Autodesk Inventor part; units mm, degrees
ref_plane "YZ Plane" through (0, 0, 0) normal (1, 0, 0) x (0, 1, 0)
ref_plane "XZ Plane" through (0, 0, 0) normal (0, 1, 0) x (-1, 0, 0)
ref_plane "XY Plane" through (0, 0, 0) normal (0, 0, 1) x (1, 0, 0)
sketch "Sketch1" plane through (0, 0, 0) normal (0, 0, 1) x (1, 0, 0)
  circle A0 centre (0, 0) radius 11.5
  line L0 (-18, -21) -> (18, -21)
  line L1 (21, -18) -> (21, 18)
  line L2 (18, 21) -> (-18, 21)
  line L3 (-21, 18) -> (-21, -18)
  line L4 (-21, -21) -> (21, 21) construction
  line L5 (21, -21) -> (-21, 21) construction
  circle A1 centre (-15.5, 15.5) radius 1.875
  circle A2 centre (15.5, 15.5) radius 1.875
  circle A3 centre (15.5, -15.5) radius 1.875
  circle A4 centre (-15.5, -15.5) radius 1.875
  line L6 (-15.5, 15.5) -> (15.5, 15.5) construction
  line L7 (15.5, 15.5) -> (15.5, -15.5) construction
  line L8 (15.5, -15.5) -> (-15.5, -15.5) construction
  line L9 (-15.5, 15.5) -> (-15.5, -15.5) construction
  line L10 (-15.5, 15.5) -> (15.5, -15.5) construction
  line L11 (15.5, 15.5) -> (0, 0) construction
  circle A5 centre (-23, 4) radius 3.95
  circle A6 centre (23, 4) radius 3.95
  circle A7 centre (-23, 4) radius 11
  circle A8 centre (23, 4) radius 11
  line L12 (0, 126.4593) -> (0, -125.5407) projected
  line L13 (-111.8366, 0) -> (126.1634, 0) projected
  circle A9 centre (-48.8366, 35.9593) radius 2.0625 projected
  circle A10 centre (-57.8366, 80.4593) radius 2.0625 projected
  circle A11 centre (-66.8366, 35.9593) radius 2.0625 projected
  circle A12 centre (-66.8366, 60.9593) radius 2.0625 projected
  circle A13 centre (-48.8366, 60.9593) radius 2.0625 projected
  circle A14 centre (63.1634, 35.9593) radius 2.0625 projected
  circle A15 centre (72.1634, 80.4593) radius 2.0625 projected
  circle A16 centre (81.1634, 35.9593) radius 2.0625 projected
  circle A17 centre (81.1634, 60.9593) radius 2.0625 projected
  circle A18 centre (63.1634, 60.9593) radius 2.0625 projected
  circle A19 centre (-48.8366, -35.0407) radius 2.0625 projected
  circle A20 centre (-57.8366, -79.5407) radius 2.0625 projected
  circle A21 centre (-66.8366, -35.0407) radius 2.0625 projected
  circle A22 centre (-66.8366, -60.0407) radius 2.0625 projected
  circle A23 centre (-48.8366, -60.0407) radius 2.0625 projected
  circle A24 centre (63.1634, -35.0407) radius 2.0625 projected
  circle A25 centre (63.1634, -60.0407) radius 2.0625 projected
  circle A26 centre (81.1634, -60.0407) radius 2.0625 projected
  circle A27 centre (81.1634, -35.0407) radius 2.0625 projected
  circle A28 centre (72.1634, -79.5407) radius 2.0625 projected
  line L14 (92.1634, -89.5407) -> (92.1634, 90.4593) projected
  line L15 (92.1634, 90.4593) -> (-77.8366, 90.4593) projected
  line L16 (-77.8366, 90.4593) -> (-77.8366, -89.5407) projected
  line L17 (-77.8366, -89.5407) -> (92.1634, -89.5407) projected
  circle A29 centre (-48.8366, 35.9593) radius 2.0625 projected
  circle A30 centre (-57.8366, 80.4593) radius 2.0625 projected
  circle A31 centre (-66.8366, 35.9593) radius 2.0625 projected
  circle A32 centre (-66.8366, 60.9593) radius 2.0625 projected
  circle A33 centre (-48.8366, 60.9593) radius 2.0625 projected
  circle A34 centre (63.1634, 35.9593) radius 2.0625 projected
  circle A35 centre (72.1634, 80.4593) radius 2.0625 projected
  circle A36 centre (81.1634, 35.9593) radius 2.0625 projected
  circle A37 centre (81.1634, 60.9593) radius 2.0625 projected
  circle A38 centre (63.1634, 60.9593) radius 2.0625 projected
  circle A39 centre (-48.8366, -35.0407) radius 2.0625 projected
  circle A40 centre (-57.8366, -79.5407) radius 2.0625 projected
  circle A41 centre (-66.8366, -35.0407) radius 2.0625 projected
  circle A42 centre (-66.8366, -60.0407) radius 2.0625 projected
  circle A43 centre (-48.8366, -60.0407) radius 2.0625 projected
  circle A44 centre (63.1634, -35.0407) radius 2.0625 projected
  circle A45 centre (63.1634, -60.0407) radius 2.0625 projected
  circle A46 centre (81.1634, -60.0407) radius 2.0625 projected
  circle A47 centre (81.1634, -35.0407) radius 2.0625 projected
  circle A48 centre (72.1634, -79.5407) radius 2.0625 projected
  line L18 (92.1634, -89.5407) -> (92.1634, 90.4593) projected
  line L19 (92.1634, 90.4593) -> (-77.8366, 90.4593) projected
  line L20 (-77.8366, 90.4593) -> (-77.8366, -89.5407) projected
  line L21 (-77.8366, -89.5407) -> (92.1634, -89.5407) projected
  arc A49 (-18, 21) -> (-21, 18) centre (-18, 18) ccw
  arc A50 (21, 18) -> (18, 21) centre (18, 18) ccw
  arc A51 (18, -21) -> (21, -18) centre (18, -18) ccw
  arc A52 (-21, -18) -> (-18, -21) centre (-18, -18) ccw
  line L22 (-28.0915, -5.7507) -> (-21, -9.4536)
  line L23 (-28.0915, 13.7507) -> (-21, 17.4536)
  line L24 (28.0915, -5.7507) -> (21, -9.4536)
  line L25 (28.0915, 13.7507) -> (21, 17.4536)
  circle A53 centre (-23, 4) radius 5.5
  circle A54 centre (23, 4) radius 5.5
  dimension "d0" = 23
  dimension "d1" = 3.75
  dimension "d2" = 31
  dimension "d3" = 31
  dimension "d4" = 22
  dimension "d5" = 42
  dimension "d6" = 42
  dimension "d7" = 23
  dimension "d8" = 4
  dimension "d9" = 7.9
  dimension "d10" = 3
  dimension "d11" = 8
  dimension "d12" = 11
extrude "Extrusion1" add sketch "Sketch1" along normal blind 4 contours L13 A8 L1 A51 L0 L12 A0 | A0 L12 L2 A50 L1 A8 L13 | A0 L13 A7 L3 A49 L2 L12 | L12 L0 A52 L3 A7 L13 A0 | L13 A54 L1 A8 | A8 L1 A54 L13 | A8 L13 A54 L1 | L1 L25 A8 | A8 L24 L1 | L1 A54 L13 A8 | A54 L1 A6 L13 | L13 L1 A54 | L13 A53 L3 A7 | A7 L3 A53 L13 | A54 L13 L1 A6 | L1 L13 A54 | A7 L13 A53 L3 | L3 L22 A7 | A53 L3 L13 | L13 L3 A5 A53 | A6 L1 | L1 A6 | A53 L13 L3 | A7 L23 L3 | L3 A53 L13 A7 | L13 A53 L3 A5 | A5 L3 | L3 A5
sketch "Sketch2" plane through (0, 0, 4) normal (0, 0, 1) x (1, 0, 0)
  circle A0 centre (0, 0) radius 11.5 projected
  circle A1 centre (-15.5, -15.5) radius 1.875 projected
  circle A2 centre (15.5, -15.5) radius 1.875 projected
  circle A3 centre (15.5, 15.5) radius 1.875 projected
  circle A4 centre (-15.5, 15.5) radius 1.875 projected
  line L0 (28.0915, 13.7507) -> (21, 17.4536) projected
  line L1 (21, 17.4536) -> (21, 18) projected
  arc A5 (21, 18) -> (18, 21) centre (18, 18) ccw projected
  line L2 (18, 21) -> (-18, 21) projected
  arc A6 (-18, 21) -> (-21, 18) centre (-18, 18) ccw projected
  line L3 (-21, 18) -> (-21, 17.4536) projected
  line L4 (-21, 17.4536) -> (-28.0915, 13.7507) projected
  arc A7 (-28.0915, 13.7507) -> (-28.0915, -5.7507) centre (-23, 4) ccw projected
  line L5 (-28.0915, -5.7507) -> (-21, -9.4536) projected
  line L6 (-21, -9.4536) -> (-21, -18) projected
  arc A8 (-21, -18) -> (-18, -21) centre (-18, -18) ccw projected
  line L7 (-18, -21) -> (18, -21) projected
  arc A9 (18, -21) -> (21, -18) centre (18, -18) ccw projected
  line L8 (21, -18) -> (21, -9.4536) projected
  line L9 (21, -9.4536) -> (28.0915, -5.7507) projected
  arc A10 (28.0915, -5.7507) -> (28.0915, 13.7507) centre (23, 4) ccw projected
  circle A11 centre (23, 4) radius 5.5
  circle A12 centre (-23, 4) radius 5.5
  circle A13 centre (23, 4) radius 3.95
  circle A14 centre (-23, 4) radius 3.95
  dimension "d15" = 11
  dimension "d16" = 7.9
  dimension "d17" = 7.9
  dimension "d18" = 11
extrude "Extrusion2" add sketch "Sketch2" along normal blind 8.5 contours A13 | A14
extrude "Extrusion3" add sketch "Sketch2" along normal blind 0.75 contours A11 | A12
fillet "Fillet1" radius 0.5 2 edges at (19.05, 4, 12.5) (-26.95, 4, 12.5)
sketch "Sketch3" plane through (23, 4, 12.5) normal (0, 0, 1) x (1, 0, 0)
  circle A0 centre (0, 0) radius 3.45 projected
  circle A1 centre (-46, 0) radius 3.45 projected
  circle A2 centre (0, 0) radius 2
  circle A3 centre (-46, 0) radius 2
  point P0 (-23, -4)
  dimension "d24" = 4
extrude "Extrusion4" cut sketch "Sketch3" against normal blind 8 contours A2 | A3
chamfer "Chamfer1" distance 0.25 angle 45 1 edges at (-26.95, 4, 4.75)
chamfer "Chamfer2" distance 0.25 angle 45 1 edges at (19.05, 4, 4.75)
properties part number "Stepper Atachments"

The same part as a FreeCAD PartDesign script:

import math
import FreeCAD as App
import Part
import Sketcher

V = App.Vector


def edges_at(feature, points):
    """Names of the edges that pass closest to the given points."""
    edges = feature.Shape.Edges
    near = lambda p: min(range(len(edges)), key=lambda i: edges[i].distToShape(Part.Vertex(*p))[0])
    return sorted({f"Edge{near(p) + 1}" for p in points})

doc = App.newDocument("Part")
params = doc.addObject("Spreadsheet::Sheet", "Params")
for row, (alias, value) in enumerate([
    ("sketch1_diameter", "23 mm"),
    ("sketch1_radius", "11 mm"),
    ("sketch1_radius2", "3 mm"),
    ("sketch1_diameter2", "3.75 mm"),
    ("sketch1_length", "8 mm"),
    ("pad1_length", "4 mm"),
    ("sketch2_diameter", "7.9 mm"),
    ("pad2_length", "8.5 mm"),
    ("sketch3_diameter", "11 mm"),
    ("sketch3_diameter2", "7.9 mm"),
    ("pad3_length", "0.75 mm"),
    ("fillet_radius", "0.5 mm"),
    ("sketch4_diameter", "4 mm"),
    ("pocket1_length", "8 mm"),
    ("chamfer_size", "0.25 mm"),
    ("chamfer2_size", "0.25 mm"),
], start=1):
    params.set(f"A{row}", alias)
    params.set(f"B{row}", "=" + value)
    params.setAlias(f"B{row}", alias)

body = doc.addObject("PartDesign::Body", "Body")

# Sketch on XY plane
sketch1 = body.newObject("Sketcher::SketchObject", "Sketch")
sketch1.AttachmentSupport = (doc.getObject("XY_Plane"), [""])
sketch1.MapMode = "FlatFace"
sketch1.addGeometry(Part.LineSegment(V(21, -18, 0), V(21, -9.5, 0)), False)
sketch1.addGeometry(Part.LineSegment(V(21, -9.5, 0), V(28.1, -5.8, 0)), False)
sketch1.addGeometry(Part.ArcOfCircle(Part.Circle(V(23, 4, 0), V(0, 0, 1), 11), math.radians(-62), math.radians(62)), False)
sketch1.addGeometry(Part.LineSegment(V(28.1, 13.8, 0), V(21, 17.5, 0)), False)
sketch1.addGeometry(Part.LineSegment(V(21, 17.5, 0), V(21, 18, 0)), False)
sketch1.addGeometry(Part.ArcOfCircle(Part.Circle(V(18, 18, 0), V(0, 0, 1), 3), math.radians(0), math.radians(90)), False)
sketch1.addGeometry(Part.LineSegment(V(18, 21, 0), V(-18, 21, 0)), False)
sketch1.addGeometry(Part.ArcOfCircle(Part.Circle(V(-18, 18, 0), V(0, 0, 1), 3), math.radians(90), math.radians(180)), False)
sketch1.addGeometry(Part.LineSegment(V(-21, 18, 0), V(-21, 17.5, 0)), False)
sketch1.addGeometry(Part.LineSegment(V(-21, 17.5, 0), V(-28.1, 13.8, 0)), False)
sketch1.addGeometry(Part.ArcOfCircle(Part.Circle(V(-23, 4, 0), V(0, 0, 1), 11), math.radians(118), math.radians(242)), False)
sketch1.addGeometry(Part.LineSegment(V(-28.1, -5.8, 0), V(-21, -9.5, 0)), False)
sketch1.addGeometry(Part.LineSegment(V(-21, -9.5, 0), V(-21, -18, 0)), False)
sketch1.addGeometry(Part.ArcOfCircle(Part.Circle(V(-18, -18, 0), V(0, 0, 1), 3), math.radians(180), math.radians(270)), False)
sketch1.addGeometry(Part.LineSegment(V(-18, -21, 0), V(18, -21, 0)), False)
sketch1.addGeometry(Part.ArcOfCircle(Part.Circle(V(18, -18, 0), V(0, 0, 1), 3), math.radians(-90), math.radians(0)), False)
sketch1.addGeometry(Part.Circle(V(0, 0, 0), V(0, 0, 1), 11.5), False)
sketch1.addGeometry(Part.Circle(V(15.5, -15.5, 0), V(0, 0, 1), 1.9), False)
sketch1.addGeometry(Part.Circle(V(15.5, 15.5, 0), V(0, 0, 1), 1.9), False)
sketch1.addGeometry(Part.Circle(V(-15.5, -15.5, 0), V(0, 0, 1), 1.9), False)
sketch1.addGeometry(Part.Circle(V(-15.5, 15.5, 0), V(0, 0, 1), 1.9), False)
sketch1.addConstraint(Sketcher.Constraint("Coincident", 0, 2, 1, 1))
sketch1.addConstraint(Sketcher.Constraint("Tangent", 1, 2, 2, 1))
sketch1.addConstraint(Sketcher.Constraint("Tangent", 2, 2, 3, 1))
sketch1.addConstraint(Sketcher.Constraint("Coincident", 3, 2, 4, 1))
sketch1.addConstraint(Sketcher.Constraint("Tangent", 4, 2, 5, 1))
sketch1.addConstraint(Sketcher.Constraint("Tangent", 5, 2, 6, 1))
sketch1.addConstraint(Sketcher.Constraint("Tangent", 6, 2, 7, 1))
sketch1.addConstraint(Sketcher.Constraint("Tangent", 7, 2, 8, 1))
sketch1.addConstraint(Sketcher.Constraint("Coincident", 8, 2, 9, 1))
sketch1.addConstraint(Sketcher.Constraint("Tangent", 9, 2, 10, 1))
sketch1.addConstraint(Sketcher.Constraint("Tangent", 10, 2, 11, 1))
sketch1.addConstraint(Sketcher.Constraint("Coincident", 11, 2, 12, 1))
sketch1.addConstraint(Sketcher.Constraint("Tangent", 12, 2, 13, 1))
sketch1.addConstraint(Sketcher.Constraint("Tangent", 13, 2, 14, 1))
sketch1.addConstraint(Sketcher.Constraint("Tangent", 14, 2, 15, 1))
sketch1.addConstraint(Sketcher.Constraint("Tangent", 15, 2, 0, 1))
sketch1.addConstraint(Sketcher.Constraint("Vertical", 0))
sketch1.addConstraint(Sketcher.Constraint("Vertical", 4))
sketch1.addConstraint(Sketcher.Constraint("Horizontal", 6))
sketch1.addConstraint(Sketcher.Constraint("Vertical", 8))
sketch1.addConstraint(Sketcher.Constraint("Vertical", 12))
sketch1.addConstraint(Sketcher.Constraint("Horizontal", 14))
sketch1.addConstraint(Sketcher.Constraint("Coincident", 16, 3, -1, 1))
sketch1.addConstraint(Sketcher.Constraint("Equal", 5, 7))
sketch1.addConstraint(Sketcher.Constraint("Equal", 2, 10))
sketch1.addConstraint(Sketcher.Constraint("Equal", 7, 13))
sketch1.addConstraint(Sketcher.Constraint("Equal", 13, 15))
sketch1.addConstraint(Sketcher.Constraint("Equal", 17, 18))
sketch1.addConstraint(Sketcher.Constraint("Equal", 18, 19))
sketch1.addConstraint(Sketcher.Constraint("Equal", 19, 20))
sketch1.addConstraint(Sketcher.Constraint("Symmetric", 5, 3, 13, 3, -1, 1))
sketch1.addConstraint(Sketcher.Constraint("Symmetric", 18, 3, 19, 3, -1, 1))
sketch1.addConstraint(Sketcher.Constraint("Symmetric", 17, 3, 20, 3, -1, 1))
sketch1.addConstraint(Sketcher.Constraint("Symmetric", 2, 3, 10, 3, -2))
sketch1.addConstraint(Sketcher.Constraint("Symmetric", 17, 3, 19, 3, -2))
sketch1.addConstraint(Sketcher.Constraint("Symmetric", 3, 2, 8, 2, -2))
sketch1.addConstraint(Sketcher.Constraint("Symmetric", 0, 2, 11, 2, -2))
sketch1.addConstraint(Sketcher.Constraint("Parallel", 1, 9))
sketch1.addConstraint(Sketcher.Constraint("Diameter", 16, 23.0))
sketch1.addConstraint(Sketcher.Constraint("Radius", 2, 11.0))
sketch1.addConstraint(Sketcher.Constraint("Radius", 5, 3.0))
sketch1.addConstraint(Sketcher.Constraint("Diameter", 17, 3.75))
sketch1.addConstraint(Sketcher.Constraint("Distance", 1, 8.0))
sketch1.addConstraint(Sketcher.Constraint("DistanceX", -1, 1, 2, 3, 23.0))
sketch1.addConstraint(Sketcher.Constraint("DistanceY", -1, 1, 2, 3, 4.0))
sketch1.addConstraint(Sketcher.Constraint("DistanceY", 13, 3, 10, 3, 22.0))
sketch1.addConstraint(Sketcher.Constraint("DistanceY", 17, 3, 18, 3, 31.0))
sketch1.addConstraint(Sketcher.Constraint("DistanceX", 19, 3, 17, 3, 31.0))
sketch1.addConstraint(Sketcher.Constraint("DistanceX", 6, 2, 6, 1, 36.0))
sketch1.setExpression("Constraints[38]", "Params.sketch1_diameter")
sketch1.setExpression("Constraints[39]", "Params.sketch1_radius")
sketch1.setExpression("Constraints[40]", "Params.sketch1_radius2")
sketch1.setExpression("Constraints[41]", "Params.sketch1_diameter2")
sketch1.setExpression("Constraints[42]", "Params.sketch1_length")
pad1 = body.newObject("PartDesign::Pad", "Pad")
pad1.Profile = sketch1
pad1.setExpression("Length", "Params.pad1_length")

# Sketch on XY plane
sketch2 = body.newObject("Sketcher::SketchObject", "Sketch001")
sketch2.AttachmentSupport = (doc.getObject("XY_Plane"), [""])
sketch2.MapMode = "FlatFace"
sketch2.AttachmentOffset = App.Placement(V(0, 0, 4), App.Rotation())
sketch2.addGeometry(Part.Circle(V(23, 4, 0), V(0, 0, 1), 4), False)
sketch2.addGeometry(Part.Circle(V(-23, 4, 0), V(0, 0, 1), 4), False)
sketch2.addConstraint(Sketcher.Constraint("Equal", 0, 1))
sketch2.addConstraint(Sketcher.Constraint("Symmetric", 0, 3, 1, 3, -2))
sketch2.addConstraint(Sketcher.Constraint("Diameter", 0, 7.9))
sketch2.addConstraint(Sketcher.Constraint("DistanceX", -1, 1, 0, 3, 23.0))
sketch2.addConstraint(Sketcher.Constraint("DistanceY", -1, 1, 0, 3, 4.0))
sketch2.setExpression("Constraints[2]", "Params.sketch2_diameter")
pad2 = body.newObject("PartDesign::Pad", "Pad001")
pad2.Profile = sketch2
pad2.setExpression("Length", "Params.pad2_length")

# Sketch on XY plane
sketch3 = body.newObject("Sketcher::SketchObject", "Sketch002")
sketch3.AttachmentSupport = (doc.getObject("XY_Plane"), [""])
sketch3.MapMode = "FlatFace"
sketch3.AttachmentOffset = App.Placement(V(0, 0, 4), App.Rotation())
sketch3.addGeometry(Part.Circle(V(23, 4, 0), V(0, 0, 1), 5.5), False)
sketch3.addGeometry(Part.Circle(V(23, 4, 0), V(0, 0, 1), 4), False)
sketch3.addGeometry(Part.Circle(V(-23, 4, 0), V(0, 0, 1), 5.5), False)
sketch3.addGeometry(Part.Circle(V(-23, 4, 0), V(0, 0, 1), 4), False)
sketch3.addConstraint(Sketcher.Constraint("Coincident", 1, 3, 0, 3))
sketch3.addConstraint(Sketcher.Constraint("Coincident", 3, 3, 2, 3))
sketch3.addConstraint(Sketcher.Constraint("Equal", 0, 2))
sketch3.addConstraint(Sketcher.Constraint("Equal", 1, 3))
sketch3.addConstraint(Sketcher.Constraint("Symmetric", 0, 3, 2, 3, -2))
sketch3.addConstraint(Sketcher.Constraint("Diameter", 0, 11.0))
sketch3.addConstraint(Sketcher.Constraint("Diameter", 1, 7.9))
sketch3.addConstraint(Sketcher.Constraint("DistanceX", -1, 1, 0, 3, 23.0))
sketch3.addConstraint(Sketcher.Constraint("DistanceY", -1, 1, 0, 3, 4.0))
sketch3.setExpression("Constraints[5]", "Params.sketch3_diameter")
sketch3.setExpression("Constraints[6]", "Params.sketch3_diameter2")
pad3 = body.newObject("PartDesign::Pad", "Pad002")
pad3.Profile = sketch3
pad3.setExpression("Length", "Params.pad3_length")
doc.recompute()

fillet = body.newObject("PartDesign::Fillet", "Fillet")
fillet.Base = (pad3, edges_at(pad3, [(19.05, 4, 12.5), (-26.95, 4, 12.5)]))
fillet.setExpression("Radius", "Params.fillet_radius")

# Sketch on XY plane
sketch4 = body.newObject("Sketcher::SketchObject", "Sketch003")
sketch4.AttachmentSupport = (doc.getObject("XY_Plane"), [""])
sketch4.MapMode = "FlatFace"
sketch4.AttachmentOffset = App.Placement(V(0, 0, 12.5), App.Rotation())
sketch4.addGeometry(Part.Circle(V(23, 4, 0), V(0, 0, 1), 2), False)
sketch4.addGeometry(Part.Circle(V(-23, 4, 0), V(0, 0, 1), 2), False)
sketch4.addConstraint(Sketcher.Constraint("Equal", 0, 1))
sketch4.addConstraint(Sketcher.Constraint("Symmetric", 0, 3, 1, 3, -2))
sketch4.addConstraint(Sketcher.Constraint("Diameter", 0, 4.0))
sketch4.addConstraint(Sketcher.Constraint("DistanceY", -1, 1, 0, 3, 4.0))
sketch4.addConstraint(Sketcher.Constraint("DistanceX", -1, 1, 0, 3, 23.0))
sketch4.setExpression("Constraints[2]", "Params.sketch4_diameter")
pocket1 = body.newObject("PartDesign::Pocket", "Pocket")
pocket1.Profile = sketch4
pocket1.setExpression("Length", "Params.pocket1_length")
doc.recompute()

chamfer = body.newObject("PartDesign::Chamfer", "Chamfer")
chamfer.Base = (pocket1, edges_at(pocket1, [(-26.95, 4, 4.75)]))
chamfer.setExpression("Size", "Params.chamfer_size")
doc.recompute()

chamfer2 = body.newObject("PartDesign::Chamfer", "Chamfer001")
chamfer2.Base = (chamfer, edges_at(chamfer, [(19.05, 4, 4.75)]))
chamfer2.setExpression("Size", "Params.chamfer2_size")

doc.recompute()
